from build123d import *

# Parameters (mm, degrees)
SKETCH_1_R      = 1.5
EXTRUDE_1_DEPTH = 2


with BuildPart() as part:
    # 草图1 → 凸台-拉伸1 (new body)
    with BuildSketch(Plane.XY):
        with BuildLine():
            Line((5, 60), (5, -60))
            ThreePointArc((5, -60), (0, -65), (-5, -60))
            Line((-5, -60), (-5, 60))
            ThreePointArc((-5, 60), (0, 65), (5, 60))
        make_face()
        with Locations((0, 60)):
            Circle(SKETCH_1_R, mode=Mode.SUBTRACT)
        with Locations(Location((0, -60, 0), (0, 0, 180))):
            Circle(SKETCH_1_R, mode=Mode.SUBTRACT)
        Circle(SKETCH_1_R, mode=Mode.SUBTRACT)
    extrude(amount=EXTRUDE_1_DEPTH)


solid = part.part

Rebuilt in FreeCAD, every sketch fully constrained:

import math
import FreeCAD as App
import Part
import Sketcher
Q = App.Units.Quantity

doc = App.newDocument("Part")
body = doc.addObject("PartDesign::Body", "Body")

sketch1 = doc.addObject("Sketcher::SketchObject", "Sketch")
body.addObject(sketch1)
sketch1.AttachmentSupport = (doc.XY_Plane, [""])
sketch1.MapMode = "FlatFace"
sketch1.addGeometry(Part.LineSegment(App.Vector(5, -60, 0), App.Vector(5, 60, 0)), False)
sketch1.addGeometry(Part.ArcOfCircle(Part.Circle(App.Vector(0, 60, 0), App.Vector(0, 0, 1), 5), math.radians(0), math.radians(180)), False)
sketch1.addGeometry(Part.LineSegment(App.Vector(-5, 60, 0), App.Vector(-5, -60, 0)), False)
sketch1.addGeometry(Part.ArcOfCircle(Part.Circle(App.Vector(0, -60, 0), App.Vector(0, 0, 1), 5), math.radians(180), math.radians(360)), False)
sketch1.addGeometry(Part.Circle(App.Vector(0, -60, 0), App.Vector(0, 0, 1), 1.5), False)
sketch1.addGeometry(Part.Circle(App.Vector(0, 0, 0), App.Vector(0, 0, 1), 1.5), False)
sketch1.addGeometry(Part.Circle(App.Vector(0, 60, 0), App.Vector(0, 0, 1), 1.5), False)
sketch1.addConstraint(Sketcher.Constraint("Tangent", 0, 2, 1, 1))
sketch1.addConstraint(Sketcher.Constraint("Tangent", 1, 2, 2, 1))
sketch1.addConstraint(Sketcher.Constraint("Tangent", 2, 2, 3, 1))
sketch1.addConstraint(Sketcher.Constraint("Tangent", 3, 2, 0, 1))
sketch1.addConstraint(Sketcher.Constraint("Vertical", 0))
sketch1.addConstraint(Sketcher.Constraint("Vertical", 2))
sketch1.addConstraint(Sketcher.Constraint("Coincident", 5, 3, -1, 1))
sketch1.addConstraint(Sketcher.Constraint("Coincident", 4, 3, 3, 3))
sketch1.addConstraint(Sketcher.Constraint("Coincident", 6, 3, 1, 3))
sketch1.addConstraint(Sketcher.Constraint("Equal", 4, 5))
sketch1.addConstraint(Sketcher.Constraint("Equal", 5, 6))
sketch1.addConstraint(Sketcher.Constraint("Symmetric", 1, 3, 3, 3, -1, 1))
sketch1.addConstraint(Sketcher.Constraint("Diameter", 4, Q("3 mm")))
sketch1.addConstraint(Sketcher.Constraint("Radius", 1, Q("5 mm")))
sketch1.addConstraint(Sketcher.Constraint("DistanceY", 0, 1, 0, 2, Q("120 mm")))
pad1 = doc.addObject("PartDesign::Pad", "Pad")
body.addObject(pad1)
pad1.Profile = sketch1
pad1.Length = 2

doc.recompute()
